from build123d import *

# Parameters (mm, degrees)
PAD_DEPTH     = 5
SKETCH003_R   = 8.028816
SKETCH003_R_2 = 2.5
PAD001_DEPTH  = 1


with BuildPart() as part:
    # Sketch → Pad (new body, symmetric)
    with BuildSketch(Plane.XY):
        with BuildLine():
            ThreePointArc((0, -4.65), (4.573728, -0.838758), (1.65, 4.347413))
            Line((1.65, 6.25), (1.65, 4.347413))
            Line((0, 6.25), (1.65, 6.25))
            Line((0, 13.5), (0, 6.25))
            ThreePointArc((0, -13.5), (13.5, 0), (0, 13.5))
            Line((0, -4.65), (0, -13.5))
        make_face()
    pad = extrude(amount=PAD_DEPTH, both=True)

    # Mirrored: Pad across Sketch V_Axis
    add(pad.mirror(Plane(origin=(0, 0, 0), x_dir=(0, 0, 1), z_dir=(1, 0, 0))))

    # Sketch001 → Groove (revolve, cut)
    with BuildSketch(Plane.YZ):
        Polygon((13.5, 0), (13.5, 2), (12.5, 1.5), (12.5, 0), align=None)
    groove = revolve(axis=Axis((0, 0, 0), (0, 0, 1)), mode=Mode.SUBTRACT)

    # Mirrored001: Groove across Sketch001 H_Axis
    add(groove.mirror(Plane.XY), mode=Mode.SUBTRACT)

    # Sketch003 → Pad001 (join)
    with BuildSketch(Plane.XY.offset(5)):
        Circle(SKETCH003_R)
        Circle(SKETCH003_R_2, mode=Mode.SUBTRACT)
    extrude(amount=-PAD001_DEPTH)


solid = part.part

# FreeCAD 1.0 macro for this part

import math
import FreeCAD as App
import Part
import Sketcher
from FreeCAD import Vector


def add_polygon(sketch, points):
    """Adds a closed chain of lines whose ends are joined by coincident constraints."""
    first, n = sketch.GeometryCount, len(points)
    for a, b in zip(points, points[1:] + points[:1]):
        sketch.addGeometry(Part.LineSegment(App.Vector(*a, 0), App.Vector(*b, 0)), False)
    for i in range(n):
        sketch.addConstraint(Sketcher.Constraint("Coincident", first + i, 2, first + (i + 1) % n, 1))

doc = App.newDocument("Part")
body = doc.addObject("PartDesign::Body", "Body")

# Sketch on XY plane
sketch1 = body.newObject("Sketcher::SketchObject", "Sketch")
sketch1.AttachmentSupport = (doc.getObject("XY_Plane"), [""])
sketch1.MapMode = "FlatFace"
sketch1.addGeometry([
    Part.ArcOfCircle(Part.Circle(Vector(0, 0, 0), Vector(0, 0, 1), 4.6), math.radians(-90), math.radians(69)),  # 0
    Part.LineSegment(Vector(0, -4.7, 0), Vector(0, -13.5, 0)),  # 1
    Part.ArcOfCircle(Part.Circle(Vector(0, 0, 0), Vector(0, 0, 1), 13.5), math.radians(-90), math.radians(90)),  # 2
    Part.LineSegment(Vector(0, 13.5, 0), Vector(0, 6.2, 0)),  # 3
    Part.LineSegment(Vector(0, 6.2, 0), Vector(1.6, 6.2, 0)),  # 4
    Part.LineSegment(Vector(1.6, 6.2, 0), Vector(1.6, 4.3, 0)),  # 5
], False)
sketch1.addConstraint([
    Sketcher.Constraint("Coincident", 0, 1, 1, 1),
    Sketcher.Constraint("Coincident", 1, 2, 2, 1),
    Sketcher.Constraint("Coincident", 2, 2, 3, 1),
    Sketcher.Constraint("Coincident", 3, 2, 4, 1),
    Sketcher.Constraint("Coincident", 4, 2, 5, 1),
    Sketcher.Constraint("Coincident", 5, 2, 0, 2),
    Sketcher.Constraint("Vertical", 1),
    Sketcher.Constraint("Vertical", 3),
    Sketcher.Constraint("Horizontal", 4),
    Sketcher.Constraint("Vertical", 5),
    Sketcher.Constraint("Coincident", 0, 3, -1, 1),
    Sketcher.Constraint("Coincident", 2, 3, -1, 1),
    Sketcher.Constraint("PointOnObject", 0, 1, -2),
    Sketcher.Constraint("PointOnObject", 2, 2, -2),
    Sketcher.Constraint("Radius", 2, 13.5),
    Sketcher.Constraint("Radius", 0, 4.65),
    Sketcher.Constraint("DistanceX", 4, 1, 4, 2, 1.65),
    Sketcher.Constraint("DistanceY", 3, 2, 3, 1, 7.25),
])
pad1 = body.newObject("PartDesign::Pad", "Pad")
pad1.Profile = sketch1
pad1.Length = 10
pad1.Midplane = True
doc.recompute()

mirrored = body.newObject("PartDesign::Mirrored", "Mirrored")
mirrored.Originals = [pad1]
mirrored.MirrorPlane = (doc.getObject("YZ_Plane"), [""])
body.Tip = mirrored

# Sketch on YZ plane
sketch2 = body.newObject("Sketcher::SketchObject", "Sketch001")
sketch2.AttachmentSupport = (doc.getObject("YZ_Plane"), [""])
sketch2.MapMode = "FlatFace"
add_polygon(sketch2, [(13.5, 0), (13.5, 2), (12.5, 1.5), (12.5, 0)])  # lines 0-3
sketch2.addConstraint([
    Sketcher.Constraint("Vertical", 0),
    Sketcher.Constraint("Vertical", 2),
    Sketcher.Constraint("Horizontal", 3),
    Sketcher.Constraint("PointOnObject", 2, 2, -1),
    Sketcher.Constraint("DistanceX", 3, 1, 3, 2, 1.0),
    Sketcher.Constraint("DistanceY", 0, 1, 0, 2, 2.0),
    Sketcher.Constraint("DistanceY", 2, 2, 2, 1, 1.5),
    Sketcher.Constraint("DistanceX", -1, 1, 0, 2, 13.5),
])
groove = body.newObject("PartDesign::Groove", "Groove")
groove.Profile = sketch2
groove.ReferenceAxis = (sketch2, ["V_Axis"])
groove.Angle = 360
doc.recompute()

mirrored2 = body.newObject("PartDesign::Mirrored", "Mirrored001")
mirrored2.Originals = [groove]
mirrored2.MirrorPlane = (doc.getObject("XY_Plane"), [""])
body.Tip = mirrored2

# Sketch on XY plane
sketch3 = body.newObject("Sketcher::SketchObject", "Sketch002")
sketch3.AttachmentSupport = (doc.getObject("XY_Plane"), [""])
sketch3.MapMode = "FlatFace"
sketch3.AttachmentOffset = App.Placement(Vector(0, 0, 5), App.Rotation())
sketch3.addGeometry([
    Part.Circle(Vector(0, 0, 0), Vector(0, 0, 1), 8),
    Part.Circle(Vector(0, 0, 0), Vector(0, 0, 1), 2.5),
], False)
sketch3.addConstraint([
    Sketcher.Constraint("Coincident", 0, 3, -1, 1),
    Sketcher.Constraint("Coincident", 1, 3, -1, 1),
    Sketcher.Constraint("Diameter", 1, 5.0),
    Sketcher.Constraint("Diameter", 0, 16.057632),
])
pad2 = body.newObject("PartDesign::Pad", "Pad001")
pad2.Profile = sketch3
pad2.Length = 1
pad2.Reversed = True

doc.recompute()
